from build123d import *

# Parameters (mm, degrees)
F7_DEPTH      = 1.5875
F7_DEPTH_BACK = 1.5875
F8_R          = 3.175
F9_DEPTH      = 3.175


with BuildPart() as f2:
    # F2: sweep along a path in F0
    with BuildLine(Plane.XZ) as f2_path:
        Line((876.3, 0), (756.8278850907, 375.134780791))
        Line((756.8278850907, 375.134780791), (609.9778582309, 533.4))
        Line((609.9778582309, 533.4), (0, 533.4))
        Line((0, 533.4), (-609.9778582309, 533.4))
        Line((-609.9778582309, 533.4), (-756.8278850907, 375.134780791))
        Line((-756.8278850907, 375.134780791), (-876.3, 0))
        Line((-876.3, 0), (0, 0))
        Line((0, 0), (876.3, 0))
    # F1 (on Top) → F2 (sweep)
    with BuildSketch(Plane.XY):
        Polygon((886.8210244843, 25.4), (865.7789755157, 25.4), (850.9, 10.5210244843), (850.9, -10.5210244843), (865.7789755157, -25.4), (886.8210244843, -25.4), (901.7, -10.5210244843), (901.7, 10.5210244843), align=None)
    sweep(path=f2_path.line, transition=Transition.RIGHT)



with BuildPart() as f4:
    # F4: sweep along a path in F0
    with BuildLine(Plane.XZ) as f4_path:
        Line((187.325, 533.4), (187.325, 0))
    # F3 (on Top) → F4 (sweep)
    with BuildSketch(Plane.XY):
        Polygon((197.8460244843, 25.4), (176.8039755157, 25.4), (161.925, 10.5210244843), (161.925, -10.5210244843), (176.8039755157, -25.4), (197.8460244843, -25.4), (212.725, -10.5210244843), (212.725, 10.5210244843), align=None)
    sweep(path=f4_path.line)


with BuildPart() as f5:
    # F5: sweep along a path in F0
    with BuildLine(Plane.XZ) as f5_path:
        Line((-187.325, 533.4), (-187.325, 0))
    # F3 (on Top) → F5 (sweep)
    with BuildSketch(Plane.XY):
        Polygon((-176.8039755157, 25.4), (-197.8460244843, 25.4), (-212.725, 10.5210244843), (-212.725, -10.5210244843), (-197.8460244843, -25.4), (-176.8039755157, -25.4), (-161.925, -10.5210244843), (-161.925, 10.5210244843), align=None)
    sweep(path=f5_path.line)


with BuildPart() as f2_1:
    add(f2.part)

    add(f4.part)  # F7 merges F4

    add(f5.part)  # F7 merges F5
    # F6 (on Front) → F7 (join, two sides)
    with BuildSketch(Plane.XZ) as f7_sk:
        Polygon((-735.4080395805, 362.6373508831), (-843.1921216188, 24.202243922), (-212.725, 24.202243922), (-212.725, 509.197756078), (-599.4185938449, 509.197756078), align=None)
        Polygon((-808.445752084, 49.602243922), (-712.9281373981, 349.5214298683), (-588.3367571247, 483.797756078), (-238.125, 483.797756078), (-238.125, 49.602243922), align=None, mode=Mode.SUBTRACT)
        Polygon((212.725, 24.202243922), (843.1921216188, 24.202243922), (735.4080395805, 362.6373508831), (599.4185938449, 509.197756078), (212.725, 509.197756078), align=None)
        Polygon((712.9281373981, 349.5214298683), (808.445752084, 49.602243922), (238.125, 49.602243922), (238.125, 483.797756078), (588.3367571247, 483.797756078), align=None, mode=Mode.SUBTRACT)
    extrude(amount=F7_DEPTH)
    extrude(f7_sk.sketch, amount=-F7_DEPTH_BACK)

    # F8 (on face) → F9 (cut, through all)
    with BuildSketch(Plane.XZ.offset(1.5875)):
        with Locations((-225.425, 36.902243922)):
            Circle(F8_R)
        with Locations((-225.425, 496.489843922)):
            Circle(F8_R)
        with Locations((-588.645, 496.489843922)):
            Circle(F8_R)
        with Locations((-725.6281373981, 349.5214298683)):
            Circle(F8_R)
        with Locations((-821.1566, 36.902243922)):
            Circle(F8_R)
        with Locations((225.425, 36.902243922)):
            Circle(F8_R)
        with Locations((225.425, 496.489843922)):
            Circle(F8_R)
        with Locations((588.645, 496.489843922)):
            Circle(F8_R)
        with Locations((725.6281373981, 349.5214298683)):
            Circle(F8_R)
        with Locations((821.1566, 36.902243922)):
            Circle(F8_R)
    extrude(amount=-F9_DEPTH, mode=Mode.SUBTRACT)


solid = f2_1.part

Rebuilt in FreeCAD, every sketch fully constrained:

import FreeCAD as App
import Part
import Sketcher
Q = App.Units.Quantity

doc = App.newDocument("Part")
body = doc.addObject("PartDesign::Body", "Body")

sketch1 = doc.addObject("Sketcher::SketchObject", "Sketch")
body.addObject(sketch1)
sketch1.AttachmentSupport = (doc.XY_Plane, [""])
sketch1.MapMode = "FlatFace"
sketch1.addGeometry([
    Part.LineSegment(App.Vector(887, 25, 0), App.Vector(866, 25, 0)),
    Part.LineSegment(App.Vector(866, 25, 0), App.Vector(851, 11, 0)),
    Part.LineSegment(App.Vector(851, 11, 0), App.Vector(851, -11, 0)),
    Part.LineSegment(App.Vector(851, -11, 0), App.Vector(866, -25, 0)),
    Part.LineSegment(App.Vector(866, -25, 0), App.Vector(887, -25, 0)),
    Part.LineSegment(App.Vector(887, -25, 0), App.Vector(902, -11, 0)),
    Part.LineSegment(App.Vector(902, -11, 0), App.Vector(902, 11, 0)),
    Part.LineSegment(App.Vector(902, 11, 0), App.Vector(887, 25, 0)),
], False)
sketch1.addConstraint([
    Sketcher.Constraint("Coincident", 0, 2, 1, 1),
    Sketcher.Constraint("Coincident", 1, 2, 2, 1),
    Sketcher.Constraint("Coincident", 2, 2, 3, 1),
    Sketcher.Constraint("Coincident", 3, 2, 4, 1),
    Sketcher.Constraint("Coincident", 4, 2, 5, 1),
    Sketcher.Constraint("Coincident", 5, 2, 6, 1),
    Sketcher.Constraint("Coincident", 6, 2, 7, 1),
    Sketcher.Constraint("Coincident", 7, 2, 0, 1),
    Sketcher.Constraint("Horizontal", 0),
    Sketcher.Constraint("Vertical", 2),
    Sketcher.Constraint("Horizontal", 4),
    Sketcher.Constraint("Vertical", 6),
    Sketcher.Constraint("Symmetric", 0, 2, 3, 2, -1),
    Sketcher.Constraint("Perpendicular", 1, 3),
    Sketcher.Constraint("Perpendicular", 3, 5),
    Sketcher.Constraint("Perpendicular", 5, 7),
    Sketcher.Constraint("Horizontal", 2, 2, 5, 2),
    Sketcher.Constraint("Horizontal", 1, 2, 6, 2),
    Sketcher.Constraint("Vertical", 4, 2, 7, 2),
    Sketcher.Constraint("Equal", 4, 2),
    Sketcher.Constraint("DistanceY", -1, 1, 0, 2, Q("1 in")),
    Sketcher.Constraint("DistanceX", -1, 1, 1, 2, Q("33.5 in")),
    Sketcher.Constraint("DistanceX", 0, 2, 0, 1, 21.042049),
])

sketch2 = doc.addObject("Sketcher::SketchObject", "Sketch001")
body.addObject(sketch2)
sketch2.AttachmentSupport = (doc.XZ_Plane, [""])
sketch2.MapMode = "FlatFace"
sketch2.addGeometry([
    Part.LineSegment(App.Vector(876, 0, 0), App.Vector(757, 375, 0)),
    Part.LineSegment(App.Vector(757, 375, 0), App.Vector(610, 533, 0)),
    Part.LineSegment(App.Vector(610, 533, 0), App.Vector(-610, 533, 0)),
    Part.LineSegment(App.Vector(-610, 533, 0), App.Vector(-757, 375, 0)),
    Part.LineSegment(App.Vector(-757, 375, 0), App.Vector(-876, 0, 0)),
    Part.LineSegment(App.Vector(-876, 0, 0), App.Vector(876, 0, 0)),
], False)
sketch2.addConstraint([
    Sketcher.Constraint("Coincident", 0, 2, 1, 1),
    Sketcher.Constraint("Coincident", 1, 2, 2, 1),
    Sketcher.Constraint("Coincident", 2, 2, 3, 1),
    Sketcher.Constraint("Coincident", 3, 2, 4, 1),
    Sketcher.Constraint("Coincident", 4, 2, 5, 1),
    Sketcher.Constraint("Coincident", 5, 2, 0, 1),
    Sketcher.Constraint("Horizontal", 2),
    Sketcher.Constraint("Horizontal", 5),
    Sketcher.Constraint("Symmetric", 4, 2, 5, 2, -1, 1),
    Sketcher.Constraint("Symmetric", 0, 2, 3, 2, -2),
    Sketcher.Constraint("Equal", 1, 3),
    Sketcher.Constraint("DistanceX", 5, 1, 5, 2, Q("69 in")),
    Sketcher.Constraint("DistanceY", -1, 1, 1, 2, Q("21 in")),
    Sketcher.Constraint("Distance", 0, Q("15.5 in")),
    Sketcher.Constraint("Distance", 1, Q("8.5 in")),
    Sketcher.Constraint("DistanceX", 2, 2, 2, 1, 1219.955716),
])
doc.recompute()

additivepipe = doc.addObject("PartDesign::AdditivePipe", "AdditivePipe")
body.addObject(additivepipe)
additivepipe.Profile = sketch1
additivepipe.Spine = (sketch2, ["Edge1", "Edge2", "Edge3", "Edge4", "Edge5", "Edge6"])
additivepipe.Transition = "Right corner"
body2 = doc.addObject("PartDesign::Body", "Body001")

sketch3 = doc.addObject("Sketcher::SketchObject", "Sketch002")
body2.addObject(sketch3)
sketch3.AttachmentSupport = (doc.getObject("XY_Plane001"), [""])
sketch3.MapMode = "FlatFace"
sketch3.addGeometry([
    Part.LineSegment(App.Vector(198, 25, 0), App.Vector(177, 25, 0)),
    Part.LineSegment(App.Vector(177, 25, 0), App.Vector(162, 11, 0)),
    Part.LineSegment(App.Vector(162, 11, 0), App.Vector(162, -11, 0)),
    Part.LineSegment(App.Vector(162, -11, 0), App.Vector(177, -25, 0)),
    Part.LineSegment(App.Vector(177, -25, 0), App.Vector(198, -25, 0)),
    Part.LineSegment(App.Vector(198, -25, 0), App.Vector(213, -11, 0)),
    Part.LineSegment(App.Vector(213, -11, 0), App.Vector(213, 11, 0)),
    Part.LineSegment(App.Vector(213, 11, 0), App.Vector(198, 25, 0)),
], False)
sketch3.addConstraint([
    Sketcher.Constraint("Coincident", 0, 2, 1, 1),
    Sketcher.Constraint("Coincident", 1, 2, 2, 1),
    Sketcher.Constraint("Coincident", 2, 2, 3, 1),
    Sketcher.Constraint("Coincident", 3, 2, 4, 1),
    Sketcher.Constraint("Coincident", 4, 2, 5, 1),
    Sketcher.Constraint("Coincident", 5, 2, 6, 1),
    Sketcher.Constraint("Coincident", 6, 2, 7, 1),
    Sketcher.Constraint("Coincident", 7, 2, 0, 1),
    Sketcher.Constraint("Horizontal", 0),
    Sketcher.Constraint("Vertical", 2),
    Sketcher.Constraint("Horizontal", 4),
    Sketcher.Constraint("Vertical", 6),
    Sketcher.Constraint("Symmetric", 0, 2, 3, 2, -1),
    Sketcher.Constraint("Perpendicular", 1, 3),
    Sketcher.Constraint("Perpendicular", 3, 5),
    Sketcher.Constraint("Perpendicular", 5, 7),
    Sketcher.Constraint("Horizontal", 2, 2, 5, 2),
    Sketcher.Constraint("Horizontal", 1, 2, 6, 2),
    Sketcher.Constraint("Vertical", 4, 2, 7, 2),
    Sketcher.Constraint("Equal", 4, 2),
    Sketcher.Constraint("DistanceY", -1, 1, 0, 2, Q("1 in")),
    Sketcher.Constraint("DistanceX", -1, 1, 1, 2, Q("6.375 in")),
    Sketcher.Constraint("DistanceX", 0, 2, 0, 1, 21.042049),
])

sketch4 = doc.addObject("Sketcher::SketchObject", "Sketch003")
body2.addObject(sketch4)
sketch4.AttachmentSupport = (doc.getObject("XZ_Plane001"), [""])
sketch4.MapMode = "FlatFace"
sketch4.addGeometry(Part.LineSegment(App.Vector(187, 533, 0), App.Vector(187, 0, 0)), False)
sketch4.addConstraint([
    Sketcher.Constraint("Vertical", 0),
    Sketcher.Constraint("PointOnObject", 0, 2, -1),
    Sketcher.Constraint("DistanceY", 0, 2, 0, 1, Q("21 in")),
    Sketcher.Constraint("DistanceX", -1, 1, 0, 1, Q("7.375 in")),
])
doc.recompute()

additivepipe2 = doc.addObject("PartDesign::AdditivePipe", "AdditivePipe001")
body2.addObject(additivepipe2)
additivepipe2.Profile = sketch3
additivepipe2.Spine = (sketch4, ["Edge1"])
body3 = doc.addObject("PartDesign::Body", "Body002")

sketch5 = doc.addObject("Sketcher::SketchObject", "Sketch004")
body3.addObject(sketch5)
sketch5.AttachmentSupport = (doc.getObject("XY_Plane002"), [""])
sketch5.MapMode = "FlatFace"
sketch5.addGeometry([
    Part.LineSegment(App.Vector(-177, 25, 0), App.Vector(-198, 25, 0)),
    Part.LineSegment(App.Vector(-198, 25, 0), App.Vector(-213, 11, 0)),
    Part.LineSegment(App.Vector(-213, 11, 0), App.Vector(-213, -11, 0)),
    Part.LineSegment(App.Vector(-213, -11, 0), App.Vector(-198, -25, 0)),
    Part.LineSegment(App.Vector(-198, -25, 0), App.Vector(-177, -25, 0)),
    Part.LineSegment(App.Vector(-177, -25, 0), App.Vector(-162, -11, 0)),
    Part.LineSegment(App.Vector(-162, -11, 0), App.Vector(-162, 11, 0)),
    Part.LineSegment(App.Vector(-162, 11, 0), App.Vector(-177, 25, 0)),
], False)
sketch5.addConstraint([
    Sketcher.Constraint("Coincident", 0, 2, 1, 1),
    Sketcher.Constraint("Coincident", 1, 2, 2, 1),
    Sketcher.Constraint("Coincident", 2, 2, 3, 1),
    Sketcher.Constraint("Coincident", 3, 2, 4, 1),
    Sketcher.Constraint("Coincident", 4, 2, 5, 1),
    Sketcher.Constraint("Coincident", 5, 2, 6, 1),
    Sketcher.Constraint("Coincident", 6, 2, 7, 1),
    Sketcher.Constraint("Coincident", 7, 2, 0, 1),
    Sketcher.Constraint("Horizontal", 0),
    Sketcher.Constraint("Vertical", 2),
    Sketcher.Constraint("Horizontal", 4),
    Sketcher.Constraint("Vertical", 6),
    Sketcher.Constraint("Symmetric", 0, 2, 3, 2, -1),
    Sketcher.Constraint("Perpendicular", 1, 3),
    Sketcher.Constraint("Perpendicular", 3, 5),
    Sketcher.Constraint("Perpendicular", 5, 7),
    Sketcher.Constraint("Horizontal", 2, 2, 5, 2),
    Sketcher.Constraint("Horizontal", 1, 2, 6, 2),
    Sketcher.Constraint("Vertical", 4, 2, 7, 2),
    Sketcher.Constraint("Equal", 4, 2),
    Sketcher.Constraint("DistanceY", -1, 1, 0, 2, Q("1 in")),
    Sketcher.Constraint("DistanceX", 1, 2, -1, 1, Q("8.375 in")),
    Sketcher.Constraint("DistanceX", 0, 2, 0, 1, 21.042049),
])

sketch6 = doc.addObject("Sketcher::SketchObject", "Sketch005")
body3.addObject(sketch6)
sketch6.AttachmentSupport = (doc.getObject("XZ_Plane002"), [""])
sketch6.MapMode = "FlatFace"
sketch6.addGeometry(Part.LineSegment(App.Vector(-187, 533, 0), App.Vector(-187, 0, 0)), False)
sketch6.addConstraint([
    Sketcher.Constraint("Vertical", 0),
    Sketcher.Constraint("PointOnObject", 0, 2, -1),
    Sketcher.Constraint("DistanceY", 0, 2, 0, 1, Q("21 in")),
    Sketcher.Constraint("DistanceX", 0, 1, -1, 1, Q("7.375 in")),
])
doc.recompute()

additivepipe3 = doc.addObject("PartDesign::AdditivePipe", "AdditivePipe002")
body3.addObject(additivepipe3)
additivepipe3.Profile = sketch5
additivepipe3.Spine = (sketch6, ["Edge1"])
doc.recompute()

boolean = doc.addObject("PartDesign::Boolean", "Boolean")
body.addObject(boolean)
boolean.Type = "Fuse"
boolean.addObjects([body2])
doc.recompute()

boolean2 = doc.addObject("PartDesign::Boolean", "Boolean001")
body.addObject(boolean2)
boolean2.Type = "Fuse"
boolean2.addObjects([body3])

sketch7 = doc.addObject("Sketcher::SketchObject", "Sketch006")
body.addObject(sketch7)
sketch7.AttachmentSupport = (doc.XZ_Plane, [""])
sketch7.MapMode = "FlatFace"
sketch7.addGeometry([
    Part.LineSegment(App.Vector(-735, 363, 0), App.Vector(-843, 24, 0)),
    Part.LineSegment(App.Vector(-843, 24, 0), App.Vector(-213, 24, 0)),
    Part.LineSegment(App.Vector(-213, 24, 0), App.Vector(-213, 509, 0)),
    Part.LineSegment(App.Vector(-213, 509, 0), App.Vector(-599, 509, 0)),
    Part.LineSegment(App.Vector(-599, 509, 0), App.Vector(-735, 363, 0)),
    Part.LineSegment(App.Vector(-238, 50, 0), App.Vector(-808, 50, 0)),
    Part.LineSegment(App.Vector(-808, 50, 0), App.Vector(-713, 350, 0)),
    Part.LineSegment(App.Vector(-713, 350, 0), App.Vector(-588, 484, 0)),
    Part.LineSegment(App.Vector(-588, 484, 0), App.Vector(-238, 484, 0)),
    Part.LineSegment(App.Vector(-238, 484, 0), App.Vector(-238, 50, 0)),
    Part.LineSegment(App.Vector(213, 24, 0), App.Vector(843, 24, 0)),
    Part.LineSegment(App.Vector(843, 24, 0), App.Vector(735, 363, 0)),
    Part.LineSegment(App.Vector(735, 363, 0), App.Vector(599, 509, 0)),
    Part.LineSegment(App.Vector(599, 509, 0), App.Vector(213, 509, 0)),
    Part.LineSegment(App.Vector(213, 509, 0), App.Vector(213, 24, 0)),
    Part.LineSegment(App.Vector(588, 484, 0), App.Vector(713, 350, 0)),
    Part.LineSegment(App.Vector(713, 350, 0), App.Vector(808, 50, 0)),
    Part.LineSegment(App.Vector(808, 50, 0), App.Vector(238, 50, 0)),
    Part.LineSegment(App.Vector(238, 50, 0), App.Vector(238, 484, 0)),
    Part.LineSegment(App.Vector(238, 484, 0), App.Vector(588, 484, 0)),
], False)
sketch7.addConstraint([
    Sketcher.Constraint("Coincident", 0, 2, 1, 1),
    Sketcher.Constraint("Coincident", 1, 2, 2, 1),
    Sketcher.Constraint("Coincident", 2, 2, 3, 1),
    Sketcher.Constraint("Coincident", 3, 2, 4, 1),
    Sketcher.Constraint("Coincident", 4, 2, 0, 1),
    Sketcher.Constraint("Coincident", 5, 2, 6, 1),
    Sketcher.Constraint("Coincident", 6, 2, 7, 1),
    Sketcher.Constraint("Coincident", 7, 2, 8, 1),
    Sketcher.Constraint("Coincident", 8, 2, 9, 1),
    Sketcher.Constraint("Coincident", 9, 2, 5, 1),
    Sketcher.Constraint("Coincident", 10, 2, 11, 1),
    Sketcher.Constraint("Coincident", 11, 2, 12, 1),
    Sketcher.Constraint("Coincident", 12, 2, 13, 1),
    Sketcher.Constraint("Coincident", 13, 2, 14, 1),
    Sketcher.Constraint("Coincident", 14, 2, 10, 1),
    Sketcher.Constraint("Coincident", 15, 2, 16, 1),
    Sketcher.Constraint("Coincident", 16, 2, 17, 1),
    Sketcher.Constraint("Coincident", 17, 2, 18, 1),
    Sketcher.Constraint("Coincident", 18, 2, 19, 1),
    Sketcher.Constraint("Coincident", 19, 2, 15, 1),
    Sketcher.Constraint("Horizontal", 1),
    Sketcher.Constraint("Vertical", 2),
    Sketcher.Constraint("Horizontal", 3),
    Sketcher.Constraint("Horizontal", 5),
    Sketcher.Constraint("Horizontal", 8),
    Sketcher.Constraint("Vertical", 9),
    Sketcher.Constraint("Horizontal", 10),
    Sketcher.Constraint("Horizontal", 13),
    Sketcher.Constraint("Vertical", 14),
    Sketcher.Constraint("Horizontal", 17),
    Sketcher.Constraint("Vertical", 18),
    Sketcher.Constraint("Horizontal", 19),
    Sketcher.Constraint("Symmetric", 0, 2, 10, 2, -2),
    Sketcher.Constraint("Symmetric", 4, 2, 11, 2, -2),
    Sketcher.Constraint("Symmetric", 3, 2, 12, 2, -2),
    Sketcher.Constraint("Symmetric", 6, 2, 15, 2, -2),
    Sketcher.Constraint("Symmetric", 5, 2, 16, 2, -2),
    Sketcher.Constraint("Symmetric", 8, 2, 18, 2, -2),
    Sketcher.Constraint("Parallel", 0, 6),
    Sketcher.Constraint("Parallel", 4, 7),
    Sketcher.Constraint("Parallel", 12, 15),
    Sketcher.Constraint("Equal", 1, 10),
    Sketcher.Constraint("DistanceY", 0, 2, 5, 2, Q("1 in")),
    Sketcher.Constraint("DistanceY", 7, 2, 3, 2, Q("1 in")),
    Sketcher.Constraint("DistanceX", 8, 2, 2, 2, Q("1 in")),
    Sketcher.Constraint("DistanceX", 2, 2, 13, 2, Q("16.75 in")),
    Sketcher.Constraint("DistanceX", 1, 1, 1, 2, 630.467122),
    Sketcher.Constraint("Distance", 0, 355.184079),
    Sketcher.Constraint("DistanceX", 3, 2, 3, 1, 386.693594),
    Sketcher.Constraint("DistanceX", 5, 2, 5, 1, 570.320752),
    Sketcher.Constraint("DistanceX", 8, 1, 8, 2, 350.211757),
    Sketcher.Constraint("DistanceY", 2, 1, 2, 2, 484.995512),
    Sketcher.Constraint("DistanceX", 4, 2, -1, 1, 735.40804),
    Sketcher.Constraint("DistanceY", -1, 1, 4, 2, 362.637351),
])
pad1 = doc.addObject("PartDesign::Pad", "Pad")
body.addObject(pad1)
pad1.Profile = sketch7
pad1.Type = "TwoLengths"
pad1.Length = Q("0.0625 in")
pad1.Length2 = Q("0.0625 in")

sketch8 = doc.addObject("Sketcher::SketchObject", "Sketch007")
body.addObject(sketch8)
sketch8.AttachmentSupport = (doc.XZ_Plane, [""])
sketch8.MapMode = "FlatFace"
sketch8.AttachmentOffset = App.Placement(App.Vector(0, 0, 0.0625 * 25.4), App.Rotation())
sketch8.addGeometry([
    Part.Circle(App.Vector(-225.4, 36.9, 0), App.Vector(0, 0, 1), 3.2),
    Part.Circle(App.Vector(-225.4, 496.5, 0), App.Vector(0, 0, 1), 3.2),
    Part.Circle(App.Vector(-588.6, 496.5, 0), App.Vector(0, 0, 1), 3.2),
    Part.Circle(App.Vector(-725.6, 349.5, 0), App.Vector(0, 0, 1), 3.2),
    Part.Circle(App.Vector(-821.2, 36.9, 0), App.Vector(0, 0, 1), 3.2),
    Part.Circle(App.Vector(225.4, 36.9, 0), App.Vector(0, 0, 1), 3.2),
    Part.Circle(App.Vector(225.4, 496.5, 0), App.Vector(0, 0, 1), 3.2),
    Part.Circle(App.Vector(588.6, 496.5, 0), App.Vector(0, 0, 1), 3.2),
    Part.Circle(App.Vector(725.6, 349.5, 0), App.Vector(0, 0, 1), 3.2),
    Part.Circle(App.Vector(821.2, 36.9, 0), App.Vector(0, 0, 1), 3.2),
], False)
sketch8.addConstraint([
    Sketcher.Constraint("Equal", 0, 1),
    Sketcher.Constraint("Equal", 1, 2),
    Sketcher.Constraint("Equal", 2, 3),
    Sketcher.Constraint("Equal", 3, 4),
    Sketcher.Constraint("Equal", 4, 5),
    Sketcher.Constraint("Equal", 5, 6),
    Sketcher.Constraint("Equal", 6, 7),
    Sketcher.Constraint("Equal", 7, 8),
    Sketcher.Constraint("Equal", 8, 9),
    Sketcher.Constraint("Symmetric", 0, 3, 5, 3, -2),
    Sketcher.Constraint("Symmetric", 1, 3, 6, 3, -2),
    Sketcher.Constraint("Symmetric", 2, 3, 7, 3, -2),
    Sketcher.Constraint("Symmetric", 3, 3, 8, 3, -2),
    Sketcher.Constraint("Symmetric", 4, 3, 9, 3, -2),
    Sketcher.Constraint("Horizontal", 1, 3, 2, 3),
    Sketcher.Constraint("Horizontal", 0, 3, 4, 3),
    Sketcher.Constraint("Vertical", 0, 3, 1, 3),
    Sketcher.Constraint("Diameter", 0, Q("0.25 in")),
    Sketcher.Constraint("DistanceX", 2, 3, 1, 3, Q("14.3 in")),
    Sketcher.Constraint("DistanceX", 0, 3, 5, 3, Q("17.75 in")),
    Sketcher.Constraint("DistanceX", 4, 3, -1, 1, Q("32.329 in")),
    Sketcher.Constraint("DistanceY", 0, 3, 1, 3, Q("18.094 in")),
    Sketcher.Constraint("DistanceY", -1, 1, 3, 3, 349.52143),
    Sketcher.Constraint("DistanceY", -1, 1, 0, 3, 36.902244),
    Sketcher.Constraint("DistanceX", 3, 3, -1, 1, 725.628137),
])
pocket1 = doc.addObject("PartDesign::Pocket", "Pocket")
body.addObject(pocket1)
pocket1.Profile = sketch8
pocket1.Type = "ThroughAll"

doc.recompute()
